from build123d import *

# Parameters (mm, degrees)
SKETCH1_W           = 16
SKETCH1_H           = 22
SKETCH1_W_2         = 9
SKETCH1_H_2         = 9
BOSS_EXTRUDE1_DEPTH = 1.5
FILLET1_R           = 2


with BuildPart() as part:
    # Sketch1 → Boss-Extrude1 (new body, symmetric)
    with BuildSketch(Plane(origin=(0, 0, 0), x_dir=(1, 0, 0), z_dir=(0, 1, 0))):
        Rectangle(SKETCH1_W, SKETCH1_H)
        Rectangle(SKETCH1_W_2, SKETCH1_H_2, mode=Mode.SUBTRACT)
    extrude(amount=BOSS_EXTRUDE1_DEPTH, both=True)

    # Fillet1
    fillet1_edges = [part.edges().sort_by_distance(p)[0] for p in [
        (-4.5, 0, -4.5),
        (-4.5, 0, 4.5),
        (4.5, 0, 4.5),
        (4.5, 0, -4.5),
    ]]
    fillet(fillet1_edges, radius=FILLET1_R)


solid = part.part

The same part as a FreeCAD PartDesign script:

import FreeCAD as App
import Part
import Sketcher
from FreeCAD import Vector
Q = App.Units.Quantity


def edges_at(feature, points):
    """Names of the edges that pass closest to the given points."""
    edges = feature.Shape.Edges
    near = lambda p: min(range(len(edges)), key=lambda i: edges[i].distToShape(Part.Vertex(*p))[0])
    return sorted({f"Edge{near(p) + 1}" for p in points})


def add_polygon(sketch, points):
    """Adds a closed chain of lines whose ends are joined by coincident constraints."""
    first, n = sketch.GeometryCount, len(points)
    for a, b in zip(points, points[1:] + points[:1]):
        sketch.addGeometry(Part.LineSegment(App.Vector(*a, 0), App.Vector(*b, 0)), False)
    for i in range(n):
        sketch.addConstraint(Sketcher.Constraint("Coincident", first + i, 2, first + (i + 1) % n, 1))

doc = App.newDocument("Part")
body = doc.addObject("PartDesign::Body", "Body")

sketch1 = body.newObject("Sketcher::SketchObject", "Sketch")
sketch1.AttachmentSupport = (doc.getObject("XZ_Plane"), [""])
sketch1.MapMode = "FlatFace"
add_polygon(sketch1, [(-8, -11), (-8, 11), (8, 11), (8, -11)])
add_polygon(sketch1, [(4, 4), (-4, 4), (-4, -4), (4, -4)])
sketch1.addConstraint([
    Sketcher.Constraint("Vertical", 0),
    Sketcher.Constraint("Horizontal", 1),
    Sketcher.Constraint("Vertical", 2),
    Sketcher.Constraint("Horizontal", 3),
    Sketcher.Constraint("Horizontal", 4),
    Sketcher.Constraint("Vertical", 5),
    Sketcher.Constraint("Horizontal", 6),
    Sketcher.Constraint("Vertical", 7),
    Sketcher.Constraint("Symmetric", 0, 2, 2, 2, -1, 1),
    Sketcher.Constraint("Symmetric", 4, 2, 6, 2, -1, 1),
    Sketcher.Constraint("Equal", 6, 5),
    Sketcher.Constraint("DistanceX", 1, 1, 1, 2, Q("16 mm")),
    Sketcher.Constraint("DistanceX", 4, 2, 4, 1, Q("9 mm")),
    Sketcher.Constraint("DistanceY", 0, 1, 0, 2, Q("22 mm")),
])
pad1 = body.newObject("PartDesign::Pad", "Pad")
pad1.Profile = sketch1
pad1.Length = 3
pad1.Midplane = True
doc.recompute()

fillet = body.newObject("PartDesign::Fillet", "Fillet")
fillet.Base = (pad1, edges_at(pad1, [
    (-4.5, 0, -4.5),
    (-4.5, 0, 4.5),
    (4.5, 0, 4.5),
    (4.5, 0, -4.5),
]))
fillet.Radius = 2

doc.recompute()
